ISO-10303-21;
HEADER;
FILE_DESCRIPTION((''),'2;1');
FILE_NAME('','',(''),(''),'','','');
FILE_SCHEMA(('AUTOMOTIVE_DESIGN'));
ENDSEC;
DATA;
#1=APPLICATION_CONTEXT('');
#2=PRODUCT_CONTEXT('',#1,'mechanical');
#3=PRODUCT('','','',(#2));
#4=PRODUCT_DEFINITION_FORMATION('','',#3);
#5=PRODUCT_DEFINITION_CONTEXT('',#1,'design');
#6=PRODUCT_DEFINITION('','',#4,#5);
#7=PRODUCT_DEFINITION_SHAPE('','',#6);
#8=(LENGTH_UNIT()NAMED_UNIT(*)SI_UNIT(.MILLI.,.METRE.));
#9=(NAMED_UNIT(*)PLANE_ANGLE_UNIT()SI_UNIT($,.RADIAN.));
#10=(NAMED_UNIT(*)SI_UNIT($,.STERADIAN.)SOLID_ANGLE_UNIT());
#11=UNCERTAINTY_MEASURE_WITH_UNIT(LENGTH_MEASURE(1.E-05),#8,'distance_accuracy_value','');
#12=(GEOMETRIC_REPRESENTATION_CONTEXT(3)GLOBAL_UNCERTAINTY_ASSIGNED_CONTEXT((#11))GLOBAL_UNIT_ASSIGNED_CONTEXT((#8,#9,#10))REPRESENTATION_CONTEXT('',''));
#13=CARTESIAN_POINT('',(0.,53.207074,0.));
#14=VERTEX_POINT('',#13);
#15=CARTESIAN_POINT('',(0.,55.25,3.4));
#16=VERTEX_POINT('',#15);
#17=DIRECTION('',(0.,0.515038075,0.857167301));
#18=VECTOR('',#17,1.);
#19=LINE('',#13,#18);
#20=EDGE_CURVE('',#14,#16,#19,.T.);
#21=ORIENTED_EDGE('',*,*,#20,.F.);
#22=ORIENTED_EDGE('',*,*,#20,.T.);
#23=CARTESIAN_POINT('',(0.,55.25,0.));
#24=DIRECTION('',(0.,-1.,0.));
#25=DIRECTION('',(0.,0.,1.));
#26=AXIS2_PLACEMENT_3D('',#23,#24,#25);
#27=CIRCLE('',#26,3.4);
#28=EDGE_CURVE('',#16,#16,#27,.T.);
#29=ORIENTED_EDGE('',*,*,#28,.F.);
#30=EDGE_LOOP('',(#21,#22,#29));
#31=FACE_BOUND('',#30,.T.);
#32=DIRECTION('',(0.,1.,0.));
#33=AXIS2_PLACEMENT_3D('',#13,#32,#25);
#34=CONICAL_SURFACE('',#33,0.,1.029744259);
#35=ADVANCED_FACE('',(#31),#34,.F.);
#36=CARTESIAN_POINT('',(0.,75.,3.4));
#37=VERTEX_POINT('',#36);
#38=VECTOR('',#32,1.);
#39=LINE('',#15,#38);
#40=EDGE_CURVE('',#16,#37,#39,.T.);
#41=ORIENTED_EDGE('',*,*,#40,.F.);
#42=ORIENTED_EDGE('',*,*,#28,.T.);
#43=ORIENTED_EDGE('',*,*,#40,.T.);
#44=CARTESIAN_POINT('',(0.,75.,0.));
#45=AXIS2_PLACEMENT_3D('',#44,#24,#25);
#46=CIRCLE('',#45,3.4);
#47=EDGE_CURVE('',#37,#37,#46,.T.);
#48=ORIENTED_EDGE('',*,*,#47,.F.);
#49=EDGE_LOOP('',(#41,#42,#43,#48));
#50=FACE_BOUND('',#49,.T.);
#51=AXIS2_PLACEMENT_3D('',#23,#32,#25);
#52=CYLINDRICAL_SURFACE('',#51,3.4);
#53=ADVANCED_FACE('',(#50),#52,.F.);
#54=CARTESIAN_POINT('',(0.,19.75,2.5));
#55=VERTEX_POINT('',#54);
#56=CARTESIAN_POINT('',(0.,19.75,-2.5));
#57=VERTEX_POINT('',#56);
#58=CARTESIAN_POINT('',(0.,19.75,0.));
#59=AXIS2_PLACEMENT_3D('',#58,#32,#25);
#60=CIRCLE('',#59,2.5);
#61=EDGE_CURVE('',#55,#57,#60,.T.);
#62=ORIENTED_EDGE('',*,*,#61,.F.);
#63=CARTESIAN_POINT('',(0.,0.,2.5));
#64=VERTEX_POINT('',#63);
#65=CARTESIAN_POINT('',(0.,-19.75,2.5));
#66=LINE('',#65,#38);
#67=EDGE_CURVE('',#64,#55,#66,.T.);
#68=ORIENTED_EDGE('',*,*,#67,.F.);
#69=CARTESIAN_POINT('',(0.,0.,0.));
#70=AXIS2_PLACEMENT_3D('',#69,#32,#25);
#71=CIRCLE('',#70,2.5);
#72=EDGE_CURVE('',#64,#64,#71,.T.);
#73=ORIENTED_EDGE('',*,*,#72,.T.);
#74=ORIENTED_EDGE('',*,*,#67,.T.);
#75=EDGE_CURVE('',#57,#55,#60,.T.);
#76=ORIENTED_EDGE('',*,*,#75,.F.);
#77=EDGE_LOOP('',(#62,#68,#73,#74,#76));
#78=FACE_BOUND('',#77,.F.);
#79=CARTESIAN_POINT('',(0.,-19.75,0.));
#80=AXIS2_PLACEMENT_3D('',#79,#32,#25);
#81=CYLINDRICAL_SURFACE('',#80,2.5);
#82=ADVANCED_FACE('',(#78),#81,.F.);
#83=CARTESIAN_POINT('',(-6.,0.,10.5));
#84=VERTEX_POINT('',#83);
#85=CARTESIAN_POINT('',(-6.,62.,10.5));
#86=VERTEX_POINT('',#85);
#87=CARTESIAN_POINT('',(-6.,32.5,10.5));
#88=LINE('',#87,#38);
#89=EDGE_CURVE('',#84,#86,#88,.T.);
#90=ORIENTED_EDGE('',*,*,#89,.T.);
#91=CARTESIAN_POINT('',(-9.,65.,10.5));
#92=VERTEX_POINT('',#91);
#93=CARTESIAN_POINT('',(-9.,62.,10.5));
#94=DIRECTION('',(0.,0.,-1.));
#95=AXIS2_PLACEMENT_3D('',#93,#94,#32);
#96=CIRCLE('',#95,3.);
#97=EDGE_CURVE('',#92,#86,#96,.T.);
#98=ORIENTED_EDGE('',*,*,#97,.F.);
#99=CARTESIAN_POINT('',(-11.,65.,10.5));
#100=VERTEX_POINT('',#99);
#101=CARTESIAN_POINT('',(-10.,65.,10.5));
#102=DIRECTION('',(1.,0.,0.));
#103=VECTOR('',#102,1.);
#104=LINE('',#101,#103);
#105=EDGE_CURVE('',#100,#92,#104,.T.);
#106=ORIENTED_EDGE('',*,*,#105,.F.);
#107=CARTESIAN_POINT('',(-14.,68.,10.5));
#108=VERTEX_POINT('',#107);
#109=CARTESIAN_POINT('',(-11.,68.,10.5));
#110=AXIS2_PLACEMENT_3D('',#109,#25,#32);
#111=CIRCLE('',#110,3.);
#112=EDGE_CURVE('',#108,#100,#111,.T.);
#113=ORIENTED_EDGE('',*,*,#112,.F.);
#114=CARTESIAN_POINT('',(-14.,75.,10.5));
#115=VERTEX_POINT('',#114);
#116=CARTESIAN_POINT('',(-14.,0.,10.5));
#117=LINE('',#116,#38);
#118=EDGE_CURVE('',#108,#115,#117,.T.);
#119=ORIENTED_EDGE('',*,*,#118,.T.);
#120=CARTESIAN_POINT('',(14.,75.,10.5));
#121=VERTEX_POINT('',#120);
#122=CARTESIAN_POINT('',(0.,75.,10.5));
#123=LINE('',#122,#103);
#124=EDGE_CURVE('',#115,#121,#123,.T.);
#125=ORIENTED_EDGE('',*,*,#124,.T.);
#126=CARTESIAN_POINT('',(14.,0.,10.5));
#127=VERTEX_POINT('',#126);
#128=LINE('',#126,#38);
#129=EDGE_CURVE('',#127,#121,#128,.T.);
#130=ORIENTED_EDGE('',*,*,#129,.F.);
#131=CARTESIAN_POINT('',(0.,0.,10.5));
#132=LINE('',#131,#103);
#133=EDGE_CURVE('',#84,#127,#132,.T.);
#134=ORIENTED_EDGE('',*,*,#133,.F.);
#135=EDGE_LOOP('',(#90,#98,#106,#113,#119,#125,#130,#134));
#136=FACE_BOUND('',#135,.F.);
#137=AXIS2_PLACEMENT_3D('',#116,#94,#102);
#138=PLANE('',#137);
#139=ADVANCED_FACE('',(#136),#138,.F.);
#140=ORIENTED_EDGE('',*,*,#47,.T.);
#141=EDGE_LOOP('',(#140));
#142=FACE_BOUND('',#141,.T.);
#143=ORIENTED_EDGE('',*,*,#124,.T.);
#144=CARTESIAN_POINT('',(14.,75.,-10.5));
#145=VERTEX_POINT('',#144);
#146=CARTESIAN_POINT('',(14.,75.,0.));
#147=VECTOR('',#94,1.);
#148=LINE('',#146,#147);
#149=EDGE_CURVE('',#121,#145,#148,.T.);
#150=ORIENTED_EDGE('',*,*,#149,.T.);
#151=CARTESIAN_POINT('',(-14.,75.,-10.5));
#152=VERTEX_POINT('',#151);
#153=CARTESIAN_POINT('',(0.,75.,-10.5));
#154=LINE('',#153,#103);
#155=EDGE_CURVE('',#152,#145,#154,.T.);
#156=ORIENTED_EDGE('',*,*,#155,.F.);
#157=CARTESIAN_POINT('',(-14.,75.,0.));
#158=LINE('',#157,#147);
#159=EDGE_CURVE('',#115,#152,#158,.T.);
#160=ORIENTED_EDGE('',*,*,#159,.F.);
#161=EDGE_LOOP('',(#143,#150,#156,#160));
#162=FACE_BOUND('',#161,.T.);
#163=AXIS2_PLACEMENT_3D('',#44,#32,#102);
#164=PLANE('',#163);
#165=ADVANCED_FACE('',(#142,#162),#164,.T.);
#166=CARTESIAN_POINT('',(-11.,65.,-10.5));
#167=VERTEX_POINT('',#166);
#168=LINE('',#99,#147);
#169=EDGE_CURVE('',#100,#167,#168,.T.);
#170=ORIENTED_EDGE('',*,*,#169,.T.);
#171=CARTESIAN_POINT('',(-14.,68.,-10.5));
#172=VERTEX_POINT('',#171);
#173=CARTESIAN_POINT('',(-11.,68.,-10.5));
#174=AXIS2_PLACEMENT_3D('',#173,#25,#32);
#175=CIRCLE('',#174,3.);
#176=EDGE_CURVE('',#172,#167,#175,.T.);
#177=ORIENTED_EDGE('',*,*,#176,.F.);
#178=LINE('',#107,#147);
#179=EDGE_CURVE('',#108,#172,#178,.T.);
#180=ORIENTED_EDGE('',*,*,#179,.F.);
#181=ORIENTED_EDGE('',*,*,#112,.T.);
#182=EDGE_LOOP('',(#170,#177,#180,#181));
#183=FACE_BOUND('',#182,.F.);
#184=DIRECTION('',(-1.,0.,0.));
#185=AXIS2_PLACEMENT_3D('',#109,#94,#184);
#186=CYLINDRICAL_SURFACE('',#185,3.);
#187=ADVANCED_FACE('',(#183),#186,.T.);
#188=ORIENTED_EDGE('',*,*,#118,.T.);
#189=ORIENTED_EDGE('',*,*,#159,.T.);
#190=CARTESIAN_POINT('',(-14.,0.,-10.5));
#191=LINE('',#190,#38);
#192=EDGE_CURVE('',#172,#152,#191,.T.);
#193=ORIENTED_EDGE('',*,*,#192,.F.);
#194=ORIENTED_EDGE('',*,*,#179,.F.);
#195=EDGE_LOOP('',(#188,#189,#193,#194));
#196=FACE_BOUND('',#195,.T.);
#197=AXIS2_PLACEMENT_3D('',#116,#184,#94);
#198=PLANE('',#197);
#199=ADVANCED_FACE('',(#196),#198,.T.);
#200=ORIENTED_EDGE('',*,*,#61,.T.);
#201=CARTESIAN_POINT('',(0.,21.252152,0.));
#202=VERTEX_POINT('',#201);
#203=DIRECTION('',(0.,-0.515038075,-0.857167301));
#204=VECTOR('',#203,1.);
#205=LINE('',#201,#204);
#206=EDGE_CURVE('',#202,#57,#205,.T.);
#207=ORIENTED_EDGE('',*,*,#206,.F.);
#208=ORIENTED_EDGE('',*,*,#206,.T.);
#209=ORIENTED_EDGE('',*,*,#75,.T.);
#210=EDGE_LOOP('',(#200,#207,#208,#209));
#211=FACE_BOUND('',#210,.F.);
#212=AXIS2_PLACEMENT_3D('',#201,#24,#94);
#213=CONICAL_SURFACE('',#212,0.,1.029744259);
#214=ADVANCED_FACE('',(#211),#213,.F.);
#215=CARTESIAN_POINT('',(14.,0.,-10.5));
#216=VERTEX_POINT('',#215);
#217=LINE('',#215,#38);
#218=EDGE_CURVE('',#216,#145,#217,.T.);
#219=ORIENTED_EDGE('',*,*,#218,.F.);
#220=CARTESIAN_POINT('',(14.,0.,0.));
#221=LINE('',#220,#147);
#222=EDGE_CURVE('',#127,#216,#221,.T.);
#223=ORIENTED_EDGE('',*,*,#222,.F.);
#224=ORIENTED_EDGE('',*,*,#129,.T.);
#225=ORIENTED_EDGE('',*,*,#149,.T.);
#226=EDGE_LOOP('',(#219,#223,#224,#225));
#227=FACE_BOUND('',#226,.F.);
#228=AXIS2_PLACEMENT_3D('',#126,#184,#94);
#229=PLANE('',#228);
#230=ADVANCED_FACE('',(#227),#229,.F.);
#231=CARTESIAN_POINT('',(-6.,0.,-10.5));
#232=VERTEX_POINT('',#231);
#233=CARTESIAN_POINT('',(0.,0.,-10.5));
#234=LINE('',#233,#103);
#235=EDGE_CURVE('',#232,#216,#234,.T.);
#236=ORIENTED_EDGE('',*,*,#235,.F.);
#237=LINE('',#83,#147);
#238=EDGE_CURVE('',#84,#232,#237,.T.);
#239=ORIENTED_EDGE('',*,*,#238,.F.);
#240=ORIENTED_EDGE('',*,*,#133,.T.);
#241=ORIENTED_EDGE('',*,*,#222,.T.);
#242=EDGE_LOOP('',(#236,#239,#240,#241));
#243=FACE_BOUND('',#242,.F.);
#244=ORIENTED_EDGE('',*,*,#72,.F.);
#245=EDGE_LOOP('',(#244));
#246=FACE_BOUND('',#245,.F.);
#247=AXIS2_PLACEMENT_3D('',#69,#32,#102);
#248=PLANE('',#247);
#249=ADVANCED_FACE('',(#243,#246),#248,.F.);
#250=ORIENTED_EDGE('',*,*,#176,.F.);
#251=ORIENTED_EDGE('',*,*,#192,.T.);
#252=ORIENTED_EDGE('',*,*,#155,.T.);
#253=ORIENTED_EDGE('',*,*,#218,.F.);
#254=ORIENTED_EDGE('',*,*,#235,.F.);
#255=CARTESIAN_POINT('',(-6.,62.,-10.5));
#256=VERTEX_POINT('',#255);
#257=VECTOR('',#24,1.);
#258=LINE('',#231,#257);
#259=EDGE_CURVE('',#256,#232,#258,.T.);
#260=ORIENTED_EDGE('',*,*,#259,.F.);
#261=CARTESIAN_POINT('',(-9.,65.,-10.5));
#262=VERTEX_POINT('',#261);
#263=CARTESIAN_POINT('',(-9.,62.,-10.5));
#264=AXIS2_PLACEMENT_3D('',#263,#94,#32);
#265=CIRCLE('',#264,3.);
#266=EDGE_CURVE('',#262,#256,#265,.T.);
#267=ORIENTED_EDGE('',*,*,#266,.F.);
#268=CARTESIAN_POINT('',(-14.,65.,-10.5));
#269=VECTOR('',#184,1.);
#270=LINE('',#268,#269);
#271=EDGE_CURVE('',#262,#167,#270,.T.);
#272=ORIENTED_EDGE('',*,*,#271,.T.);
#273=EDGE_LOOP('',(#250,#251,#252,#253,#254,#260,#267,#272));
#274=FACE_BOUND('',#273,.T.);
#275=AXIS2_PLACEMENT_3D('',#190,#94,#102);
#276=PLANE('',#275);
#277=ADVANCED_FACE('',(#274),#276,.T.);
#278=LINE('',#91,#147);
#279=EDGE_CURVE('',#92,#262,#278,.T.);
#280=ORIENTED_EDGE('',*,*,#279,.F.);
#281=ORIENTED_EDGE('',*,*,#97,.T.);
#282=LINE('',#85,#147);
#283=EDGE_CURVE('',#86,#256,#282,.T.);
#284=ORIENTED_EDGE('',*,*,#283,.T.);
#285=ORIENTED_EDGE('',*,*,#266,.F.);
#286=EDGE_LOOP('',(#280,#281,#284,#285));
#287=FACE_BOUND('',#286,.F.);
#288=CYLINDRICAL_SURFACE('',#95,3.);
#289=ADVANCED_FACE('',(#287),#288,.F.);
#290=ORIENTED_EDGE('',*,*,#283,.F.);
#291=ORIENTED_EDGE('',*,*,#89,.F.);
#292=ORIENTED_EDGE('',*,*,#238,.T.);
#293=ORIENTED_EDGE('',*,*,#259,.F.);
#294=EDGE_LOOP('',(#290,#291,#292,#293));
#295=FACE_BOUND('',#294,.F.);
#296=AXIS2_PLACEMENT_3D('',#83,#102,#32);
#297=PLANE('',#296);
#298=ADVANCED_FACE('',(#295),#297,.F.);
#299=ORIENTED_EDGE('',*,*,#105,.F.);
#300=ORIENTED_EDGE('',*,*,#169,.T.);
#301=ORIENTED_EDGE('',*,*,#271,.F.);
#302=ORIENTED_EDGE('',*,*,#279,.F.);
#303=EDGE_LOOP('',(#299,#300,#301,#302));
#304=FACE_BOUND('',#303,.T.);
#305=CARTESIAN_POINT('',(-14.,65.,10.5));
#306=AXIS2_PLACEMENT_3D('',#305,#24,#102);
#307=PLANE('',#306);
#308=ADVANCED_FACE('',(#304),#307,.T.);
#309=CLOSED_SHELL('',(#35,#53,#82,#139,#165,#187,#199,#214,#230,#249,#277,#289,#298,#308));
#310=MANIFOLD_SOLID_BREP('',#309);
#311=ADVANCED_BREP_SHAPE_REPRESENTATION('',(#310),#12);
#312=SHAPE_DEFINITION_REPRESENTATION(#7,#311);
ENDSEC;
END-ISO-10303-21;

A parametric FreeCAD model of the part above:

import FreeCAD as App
import Part
import Sketcher
from FreeCAD import Vector
Q = App.Units.Quantity


def edges_at(feature, points):
    """Names of the edges that pass closest to the given points."""
    edges = feature.Shape.Edges
    near = lambda p: min(range(len(edges)), key=lambda i: edges[i].distToShape(Part.Vertex(*p))[0])
    return sorted({f"Edge{near(p) + 1}" for p in points})

doc = App.newDocument("Part")
body = doc.addObject("PartDesign::Body", "Body")

sketch1 = body.newObject("Sketcher::SketchObject", "Sketch")
sketch1.AttachmentSupport = (doc.getObject("XZ_Plane"), [""])
sketch1.MapMode = "FlatFace"
sketch1.addGeometry(Part.LineSegment(Vector(-14, -10.5, 0), Vector(-14, 10.5, 0)), False)
sketch1.addGeometry(Part.LineSegment(Vector(-14, 10.5, 0), Vector(14, 10.5, 0)), False)
sketch1.addGeometry(Part.LineSegment(Vector(14, 10.5, 0), Vector(14, -10.5, 0)), False)
sketch1.addGeometry(Part.LineSegment(Vector(14, -10.5, 0), Vector(-14, -10.5, 0)), False)
sketch1.addConstraint(Sketcher.Constraint("Coincident", 0, 2, 1, 1))
sketch1.addConstraint(Sketcher.Constraint("Coincident", 1, 2, 2, 1))
sketch1.addConstraint(Sketcher.Constraint("Coincident", 2, 2, 3, 1))
sketch1.addConstraint(Sketcher.Constraint("Coincident", 3, 2, 0, 1))
sketch1.addConstraint(Sketcher.Constraint("Vertical", 0))
sketch1.addConstraint(Sketcher.Constraint("Horizontal", 1))
sketch1.addConstraint(Sketcher.Constraint("Vertical", 2))
sketch1.addConstraint(Sketcher.Constraint("Horizontal", 3))
sketch1.addConstraint(Sketcher.Constraint("Symmetric", 0, 2, 2, 2, -1, 1))
sketch1.addConstraint(Sketcher.Constraint("DistanceX", 1, 1, 1, 2, Q("28 mm")))
sketch1.addConstraint(Sketcher.Constraint("DistanceY", 0, 1, 0, 2, Q("21 mm")))
pad1 = body.newObject("PartDesign::Pad", "Pad")
pad1.Profile = sketch1
pad1.Length = 75
pad1.Reversed = True

sketch2 = body.newObject("Sketcher::SketchObject", "Sketch001")
sketch2.AttachmentSupport = (doc.getObject("YZ_Plane"), [""])
sketch2.MapMode = "FlatFace"
sketch2.addGeometry(Part.LineSegment(Vector(53.207074, 0, 0), Vector(75, 0, 0)), False)
sketch2.addGeometry(Part.LineSegment(Vector(75, 0, 0), Vector(75, 3.4, 0)), False)
sketch2.addGeometry(Part.LineSegment(Vector(75, 3.4, 0), Vector(55.25, 3.4, 0)), False)
sketch2.addGeometry(Part.LineSegment(Vector(55.25, 3.4, 0), Vector(53.207074, 0, 0)), False)
sketch2.addConstraint(Sketcher.Constraint("Coincident", 0, 2, 1, 1))
sketch2.addConstraint(Sketcher.Constraint("Coincident", 1, 2, 2, 1))
sketch2.addConstraint(Sketcher.Constraint("Coincident", 2, 2, 3, 1))
sketch2.addConstraint(Sketcher.Constraint("Coincident", 3, 2, 0, 1))
sketch2.addConstraint(Sketcher.Constraint("Horizontal", 0))
sketch2.addConstraint(Sketcher.Constraint("Vertical", 1))
sketch2.addConstraint(Sketcher.Constraint("Horizontal", 2))
sketch2.addConstraint(Sketcher.Constraint("PointOnObject", 0, 2, -1))
sketch2.addConstraint(Sketcher.Constraint("Angle", 3, Q("-121 deg")))
sketch2.addConstraint(Sketcher.Constraint("DistanceY", 1, 1, 1, 2, Q("3.4 mm")))
sketch2.addConstraint(Sketcher.Constraint("DistanceX", -1, 1, 0, 2, Q("75 mm")))
sketch2.addConstraint(Sketcher.Constraint("DistanceX", 2, 2, 2, 1, Q("19.75 mm")))
groove = body.newObject("PartDesign::Groove", "Groove")
groove.Profile = sketch2
groove.ReferenceAxis = (sketch2, ["H_Axis"])
groove.Angle = 360

sketch3 = body.newObject("Sketcher::SketchObject", "Sketch002")
sketch3.AttachmentSupport = (doc.getObject("XY_Plane"), [""])
sketch3.MapMode = "FlatFace"
sketch3.AttachmentOffset = App.Placement(Vector(0, 0, 10.5), App.Rotation())
sketch3.addGeometry(Part.LineSegment(Vector(-14, 65, 0), Vector(-14, 0, 0)), False)
sketch3.addGeometry(Part.LineSegment(Vector(-14, 0, 0), Vector(-6, 0, 0)), False)
sketch3.addGeometry(Part.LineSegment(Vector(-6, 0, 0), Vector(-6, 65, 0)), False)
sketch3.addGeometry(Part.LineSegment(Vector(-6, 65, 0), Vector(-14, 65, 0)), False)
sketch3.addConstraint(Sketcher.Constraint("Coincident", 0, 2, 1, 1))
sketch3.addConstraint(Sketcher.Constraint("Coincident", 1, 2, 2, 1))
sketch3.addConstraint(Sketcher.Constraint("Coincident", 2, 2, 3, 1))
sketch3.addConstraint(Sketcher.Constraint("Coincident", 3, 2, 0, 1))
sketch3.addConstraint(Sketcher.Constraint("Vertical", 0))
sketch3.addConstraint(Sketcher.Constraint("Horizontal", 1))
sketch3.addConstraint(Sketcher.Constraint("Vertical", 2))
sketch3.addConstraint(Sketcher.Constraint("Horizontal", 3))
sketch3.addConstraint(Sketcher.Constraint("PointOnObject", 0, 2, -1))
sketch3.addConstraint(Sketcher.Constraint("DistanceX", 1, 1, 1, 2, Q("8 mm")))
sketch3.addConstraint(Sketcher.Constraint("DistanceY", 0, 2, 0, 1, Q("65 mm")))
sketch3.addConstraint(Sketcher.Constraint("DistanceX", 0, 2, -1, 1, Q("14 mm")))
pocket1 = body.newObject("PartDesign::Pocket", "Pocket")
pocket1.Profile = sketch3
pocket1.Type = "ThroughAll"
doc.recompute()

fillet = body.newObject("PartDesign::Fillet", "Fillet")
fillet.Base = (pocket1, edges_at(pocket1, [(-14, 65, 0), (-6, 65, 0)]))
fillet.Radius = 3

sketch4 = body.newObject("Sketcher::SketchObject", "Sketch003")
sketch4.AttachmentSupport = (doc.getObject("XZ_Plane"), [""])
sketch4.MapMode = "FlatFace"
sketch4.addGeometry(Part.Circle(Vector(0, 0, 0), Vector(0, 0, 1), 2.5), False)
sketch4.addConstraint(Sketcher.Constraint("Coincident", 0, 3, -1, 1))
sketch4.addConstraint(Sketcher.Constraint("Diameter", 0, Q("5 mm")))
doc.recompute()
hole = body.newObject("PartDesign::Hole", "Hole")
hole.Profile = sketch4
hole.ThreadType = "None"
hole.Diameter = 5
hole.DepthType = "Dimension"
hole.Depth = 19.75
hole.DrillPoint = "Angled"
hole.DrillPointAngle = 118

doc.recompute()
